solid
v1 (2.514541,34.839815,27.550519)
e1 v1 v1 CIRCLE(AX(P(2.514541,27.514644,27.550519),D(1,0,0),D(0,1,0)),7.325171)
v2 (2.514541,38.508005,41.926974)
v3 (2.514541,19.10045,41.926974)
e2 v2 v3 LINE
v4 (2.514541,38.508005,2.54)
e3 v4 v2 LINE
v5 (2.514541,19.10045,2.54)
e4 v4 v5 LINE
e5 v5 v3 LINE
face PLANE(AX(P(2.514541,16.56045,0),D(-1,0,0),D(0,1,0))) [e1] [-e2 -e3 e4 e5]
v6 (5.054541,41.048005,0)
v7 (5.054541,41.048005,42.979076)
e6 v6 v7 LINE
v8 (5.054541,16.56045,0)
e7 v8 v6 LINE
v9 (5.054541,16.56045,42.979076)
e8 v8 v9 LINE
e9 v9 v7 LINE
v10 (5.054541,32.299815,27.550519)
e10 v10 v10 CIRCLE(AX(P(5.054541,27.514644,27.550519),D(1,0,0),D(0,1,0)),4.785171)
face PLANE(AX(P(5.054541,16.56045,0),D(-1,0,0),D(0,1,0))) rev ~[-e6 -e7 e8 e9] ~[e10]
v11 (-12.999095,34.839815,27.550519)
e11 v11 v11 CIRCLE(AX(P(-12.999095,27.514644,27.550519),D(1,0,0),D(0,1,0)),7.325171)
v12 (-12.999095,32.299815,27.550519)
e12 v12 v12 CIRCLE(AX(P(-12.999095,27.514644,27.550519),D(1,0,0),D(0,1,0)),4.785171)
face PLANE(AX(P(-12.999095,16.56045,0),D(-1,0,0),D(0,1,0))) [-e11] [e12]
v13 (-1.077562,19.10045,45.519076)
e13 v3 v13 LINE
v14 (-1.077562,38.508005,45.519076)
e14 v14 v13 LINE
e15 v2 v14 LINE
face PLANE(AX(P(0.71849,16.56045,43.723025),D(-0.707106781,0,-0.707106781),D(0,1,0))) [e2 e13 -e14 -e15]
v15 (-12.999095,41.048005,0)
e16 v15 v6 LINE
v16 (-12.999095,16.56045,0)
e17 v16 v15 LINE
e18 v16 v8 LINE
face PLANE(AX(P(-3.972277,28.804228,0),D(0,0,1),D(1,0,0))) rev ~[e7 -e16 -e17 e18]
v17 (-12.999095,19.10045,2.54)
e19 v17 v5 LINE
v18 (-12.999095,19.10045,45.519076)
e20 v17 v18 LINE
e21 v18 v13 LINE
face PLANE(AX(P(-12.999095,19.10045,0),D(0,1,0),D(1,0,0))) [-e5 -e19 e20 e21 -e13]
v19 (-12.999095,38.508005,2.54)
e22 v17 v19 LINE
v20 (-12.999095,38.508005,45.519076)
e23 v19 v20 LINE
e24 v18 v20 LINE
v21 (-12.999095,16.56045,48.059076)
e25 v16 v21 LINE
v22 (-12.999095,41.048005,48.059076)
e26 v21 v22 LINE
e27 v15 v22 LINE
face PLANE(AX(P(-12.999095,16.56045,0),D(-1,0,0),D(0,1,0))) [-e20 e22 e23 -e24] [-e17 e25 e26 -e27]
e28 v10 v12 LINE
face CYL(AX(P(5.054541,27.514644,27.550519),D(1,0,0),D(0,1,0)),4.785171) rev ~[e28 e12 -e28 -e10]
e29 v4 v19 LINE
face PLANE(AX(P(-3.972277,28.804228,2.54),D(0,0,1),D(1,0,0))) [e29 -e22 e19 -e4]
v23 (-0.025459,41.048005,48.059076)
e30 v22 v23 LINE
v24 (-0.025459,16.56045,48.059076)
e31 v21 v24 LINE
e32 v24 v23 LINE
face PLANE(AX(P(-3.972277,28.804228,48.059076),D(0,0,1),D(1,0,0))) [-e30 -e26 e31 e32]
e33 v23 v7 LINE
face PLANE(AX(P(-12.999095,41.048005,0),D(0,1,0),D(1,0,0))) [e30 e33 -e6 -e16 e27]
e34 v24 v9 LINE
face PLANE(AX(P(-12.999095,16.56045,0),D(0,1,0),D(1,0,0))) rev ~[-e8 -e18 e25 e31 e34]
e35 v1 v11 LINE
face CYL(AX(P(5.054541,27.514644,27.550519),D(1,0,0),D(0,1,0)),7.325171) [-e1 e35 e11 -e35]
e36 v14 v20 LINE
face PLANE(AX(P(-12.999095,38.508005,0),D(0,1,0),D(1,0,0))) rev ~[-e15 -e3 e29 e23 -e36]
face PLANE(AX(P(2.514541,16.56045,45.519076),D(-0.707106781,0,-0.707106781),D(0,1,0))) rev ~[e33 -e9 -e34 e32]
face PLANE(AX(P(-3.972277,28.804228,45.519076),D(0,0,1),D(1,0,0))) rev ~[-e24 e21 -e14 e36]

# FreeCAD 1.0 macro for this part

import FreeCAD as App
import Part
import Sketcher
from FreeCAD import Vector
Q = App.Units.Quantity


def edges_at(feature, points):
    """Names of the edges that pass closest to the given points."""
    edges = feature.Shape.Edges
    near = lambda p: min(range(len(edges)), key=lambda i: edges[i].distToShape(Part.Vertex(*p))[0])
    return sorted({f"Edge{near(p) + 1}" for p in points})


def faces_at(feature, points):
    """Names of the faces that lie closest to the given points."""
    faces = feature.Shape.Faces
    near = lambda p: min(range(len(faces)), key=lambda i: faces[i].distToShape(Part.Vertex(*p))[0])
    return sorted({f"Face{near(p) + 1}" for p in points})

doc = App.newDocument("Part")
body = doc.addObject("PartDesign::Body", "Body")

sketch1 = body.newObject("Sketcher::SketchObject", "Sketch")
sketch1.AttachmentSupport = (doc.getObject("XY_Plane"), [""])
sketch1.MapMode = "FlatFace"
sketch1.addGeometry([
    Part.LineSegment(Vector(-13, 41, 0), Vector(-13, 17, 0)),
    Part.LineSegment(Vector(-13, 17, 0), Vector(5, 17, 0)),
    Part.LineSegment(Vector(5, 17, 0), Vector(5, 41, 0)),
    Part.LineSegment(Vector(5, 41, 0), Vector(-13, 41, 0)),
], False)
sketch1.addConstraint([
    Sketcher.Constraint("Coincident", 0, 2, 1, 1),
    Sketcher.Constraint("Coincident", 1, 2, 2, 1),
    Sketcher.Constraint("Coincident", 2, 2, 3, 1),
    Sketcher.Constraint("Coincident", 3, 2, 0, 1),
    Sketcher.Constraint("Vertical", 0),
    Sketcher.Constraint("Horizontal", 1),
    Sketcher.Constraint("Vertical", 2),
    Sketcher.Constraint("Horizontal", 3),
    Sketcher.Constraint("DistanceX", 1, 1, 1, 2, 18.053636),
    Sketcher.Constraint("DistanceY", 0, 2, 0, 1, 24.487555),
    Sketcher.Constraint("DistanceY", -1, 1, 0, 2, 16.56045),
    Sketcher.Constraint("DistanceX", -1, 1, 1, 2, 5.054541),
])
pad1 = body.newObject("PartDesign::Pad", "Pad")
pad1.Profile = sketch1
pad1.Length = 48.059076

sketch2 = body.newObject("Sketcher::SketchObject", "Sketch001")
sketch2.AttachmentSupport = (doc.getObject("YZ_Plane"), [""])
sketch2.MapMode = "FlatFace"
sketch2.AttachmentOffset = App.Placement(Vector(0, 0, 5.054541), App.Rotation())
sketch2.addGeometry(Part.Circle(Vector(27.5, 27.6, 0), Vector(0, 0, 1), 4.8), False)
sketch2.addConstraint([
    Sketcher.Constraint("Diameter", 0, 9.570341),
    Sketcher.Constraint("DistanceY", -1, 1, 0, 3, 27.550519),
    Sketcher.Constraint("DistanceX", -1, 1, 0, 3, 27.514644),
])
pocket1 = body.newObject("PartDesign::Pocket", "Pocket")
pocket1.Profile = sketch2
pocket1.Length = 59.61924
doc.recompute()

chamfer = body.newObject("PartDesign::Chamfer", "Chamfer")
chamfer.Base = (pocket1, edges_at(pocket1, [(5.055, 28.804, 48.059)]))
chamfer.Size = Q("0.2 in")
doc.recompute()

thickness = body.newObject("PartDesign::Thickness", "Thickness")
thickness.Base = (chamfer, faces_at(chamfer, [(-12.999, 23.907, 33.641)]))
thickness.Value = Q("0.1 in")
thickness.Reversed = True
thickness.Join = "Arc"

doc.recompute()
